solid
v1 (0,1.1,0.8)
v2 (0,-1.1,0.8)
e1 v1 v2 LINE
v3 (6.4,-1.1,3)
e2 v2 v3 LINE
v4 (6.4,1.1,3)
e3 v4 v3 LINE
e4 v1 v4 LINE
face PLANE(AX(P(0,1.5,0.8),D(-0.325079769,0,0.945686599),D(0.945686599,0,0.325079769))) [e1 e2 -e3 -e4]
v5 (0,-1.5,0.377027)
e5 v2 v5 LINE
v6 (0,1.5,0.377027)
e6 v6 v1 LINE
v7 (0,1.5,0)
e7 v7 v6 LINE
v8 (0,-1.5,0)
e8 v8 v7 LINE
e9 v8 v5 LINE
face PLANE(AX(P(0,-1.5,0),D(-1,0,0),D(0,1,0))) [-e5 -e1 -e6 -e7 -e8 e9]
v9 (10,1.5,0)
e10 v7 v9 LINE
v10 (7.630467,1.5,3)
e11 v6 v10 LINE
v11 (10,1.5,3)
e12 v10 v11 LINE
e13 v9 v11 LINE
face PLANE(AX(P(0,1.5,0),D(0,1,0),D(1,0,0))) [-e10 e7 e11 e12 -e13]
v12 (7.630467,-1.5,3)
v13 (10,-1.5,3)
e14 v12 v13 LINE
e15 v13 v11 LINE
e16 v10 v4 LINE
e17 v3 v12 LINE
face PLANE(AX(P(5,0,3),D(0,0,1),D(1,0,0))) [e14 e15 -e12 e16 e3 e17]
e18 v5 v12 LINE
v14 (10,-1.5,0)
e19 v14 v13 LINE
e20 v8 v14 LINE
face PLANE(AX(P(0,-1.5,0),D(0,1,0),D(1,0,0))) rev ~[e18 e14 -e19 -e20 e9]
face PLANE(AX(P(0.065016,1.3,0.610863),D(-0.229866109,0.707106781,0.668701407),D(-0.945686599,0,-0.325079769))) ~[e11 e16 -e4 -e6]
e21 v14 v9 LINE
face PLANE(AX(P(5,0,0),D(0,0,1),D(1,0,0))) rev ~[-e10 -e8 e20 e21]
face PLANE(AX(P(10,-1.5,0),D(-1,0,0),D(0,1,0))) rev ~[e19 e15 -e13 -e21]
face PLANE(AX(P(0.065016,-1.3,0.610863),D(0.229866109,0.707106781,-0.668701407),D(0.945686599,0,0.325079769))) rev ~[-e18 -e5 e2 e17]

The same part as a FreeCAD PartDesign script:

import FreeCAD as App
import Part
import Sketcher
from FreeCAD import Vector


def edges_at(feature, points):
    """Names of the edges that pass closest to the given points."""
    edges = feature.Shape.Edges
    near = lambda p: min(range(len(edges)), key=lambda i: edges[i].distToShape(Part.Vertex(*p))[0])
    return sorted({f"Edge{near(p) + 1}" for p in points})

doc = App.newDocument("Part")
body = doc.addObject("PartDesign::Body", "Body")

# Sketch on XY plane
sketch1 = body.newObject("Sketcher::SketchObject", "Sketch")
sketch1.AttachmentSupport = (doc.getObject("XY_Plane"), [""])
sketch1.MapMode = "FlatFace"
sketch1.addGeometry(Part.LineSegment(Vector(0, 1.5, 0), Vector(0, -1.5, 0)), False)
sketch1.addGeometry(Part.LineSegment(Vector(0, -1.5, 0), Vector(10, -1.5, 0)), False)
sketch1.addGeometry(Part.LineSegment(Vector(10, -1.5, 0), Vector(10, 1.5, 0)), False)
sketch1.addGeometry(Part.LineSegment(Vector(10, 1.5, 0), Vector(0, 1.5, 0)), False)
sketch1.addConstraint(Sketcher.Constraint("Coincident", 0, 2, 1, 1))
sketch1.addConstraint(Sketcher.Constraint("Coincident", 1, 2, 2, 1))
sketch1.addConstraint(Sketcher.Constraint("Coincident", 2, 2, 3, 1))
sketch1.addConstraint(Sketcher.Constraint("Coincident", 3, 2, 0, 1))
sketch1.addConstraint(Sketcher.Constraint("Vertical", 0))
sketch1.addConstraint(Sketcher.Constraint("Horizontal", 1))
sketch1.addConstraint(Sketcher.Constraint("Vertical", 2))
sketch1.addConstraint(Sketcher.Constraint("Horizontal", 3))
sketch1.addConstraint(Sketcher.Constraint("Symmetric", 0, 2, 3, 2, -1, 1))
sketch1.addConstraint(Sketcher.Constraint("DistanceX", 1, 1, 1, 2, 10.0))
sketch1.addConstraint(Sketcher.Constraint("DistanceY", 0, 2, 0, 1, 3.0))
pad1 = body.newObject("PartDesign::Pad", "Pad")
pad1.Profile = sketch1
pad1.Length = 3

# Sketch on XZ plane
sketch2 = body.newObject("Sketcher::SketchObject", "Sketch001")
sketch2.AttachmentSupport = (doc.getObject("XZ_Plane"), [""])
sketch2.MapMode = "FlatFace"
sketch2.AttachmentOffset = App.Placement(Vector(0, 0, -1.5), App.Rotation())
sketch2.addGeometry(Part.LineSegment(Vector(6.4, 3, 0), Vector(0, 0.8, 0)), False)
sketch2.addGeometry(Part.LineSegment(Vector(0, 0.8, 0), Vector(0, 3, 0)), False)
sketch2.addGeometry(Part.LineSegment(Vector(0, 3, 0), Vector(6.4, 3, 0)), False)
sketch2.addConstraint(Sketcher.Constraint("Coincident", 0, 2, 1, 1))
sketch2.addConstraint(Sketcher.Constraint("Coincident", 1, 2, 2, 1))
sketch2.addConstraint(Sketcher.Constraint("Coincident", 2, 2, 0, 1))
sketch2.addConstraint(Sketcher.Constraint("Vertical", 1))
sketch2.addConstraint(Sketcher.Constraint("Horizontal", 2))
sketch2.addConstraint(Sketcher.Constraint("PointOnObject", 0, 2, -2))
sketch2.addConstraint(Sketcher.Constraint("DistanceX", 2, 1, 2, 2, 6.4))
sketch2.addConstraint(Sketcher.Constraint("DistanceY", 1, 1, 1, 2, 2.2))
sketch2.addConstraint(Sketcher.Constraint("DistanceY", -1, 1, 1, 2, 3.0))
pocket1 = body.newObject("PartDesign::Pocket", "Pocket")
pocket1.Profile = sketch2
pocket1.Length = 5
pocket1.Reversed = True
doc.recompute()

chamfer = body.newObject("PartDesign::Chamfer", "Chamfer")
chamfer.Base = (pocket1, edges_at(pocket1, [(3.2, 1.5, 1.9), (3.2, -1.5, 1.9)]))
chamfer.Size = 0.4

doc.recompute()
